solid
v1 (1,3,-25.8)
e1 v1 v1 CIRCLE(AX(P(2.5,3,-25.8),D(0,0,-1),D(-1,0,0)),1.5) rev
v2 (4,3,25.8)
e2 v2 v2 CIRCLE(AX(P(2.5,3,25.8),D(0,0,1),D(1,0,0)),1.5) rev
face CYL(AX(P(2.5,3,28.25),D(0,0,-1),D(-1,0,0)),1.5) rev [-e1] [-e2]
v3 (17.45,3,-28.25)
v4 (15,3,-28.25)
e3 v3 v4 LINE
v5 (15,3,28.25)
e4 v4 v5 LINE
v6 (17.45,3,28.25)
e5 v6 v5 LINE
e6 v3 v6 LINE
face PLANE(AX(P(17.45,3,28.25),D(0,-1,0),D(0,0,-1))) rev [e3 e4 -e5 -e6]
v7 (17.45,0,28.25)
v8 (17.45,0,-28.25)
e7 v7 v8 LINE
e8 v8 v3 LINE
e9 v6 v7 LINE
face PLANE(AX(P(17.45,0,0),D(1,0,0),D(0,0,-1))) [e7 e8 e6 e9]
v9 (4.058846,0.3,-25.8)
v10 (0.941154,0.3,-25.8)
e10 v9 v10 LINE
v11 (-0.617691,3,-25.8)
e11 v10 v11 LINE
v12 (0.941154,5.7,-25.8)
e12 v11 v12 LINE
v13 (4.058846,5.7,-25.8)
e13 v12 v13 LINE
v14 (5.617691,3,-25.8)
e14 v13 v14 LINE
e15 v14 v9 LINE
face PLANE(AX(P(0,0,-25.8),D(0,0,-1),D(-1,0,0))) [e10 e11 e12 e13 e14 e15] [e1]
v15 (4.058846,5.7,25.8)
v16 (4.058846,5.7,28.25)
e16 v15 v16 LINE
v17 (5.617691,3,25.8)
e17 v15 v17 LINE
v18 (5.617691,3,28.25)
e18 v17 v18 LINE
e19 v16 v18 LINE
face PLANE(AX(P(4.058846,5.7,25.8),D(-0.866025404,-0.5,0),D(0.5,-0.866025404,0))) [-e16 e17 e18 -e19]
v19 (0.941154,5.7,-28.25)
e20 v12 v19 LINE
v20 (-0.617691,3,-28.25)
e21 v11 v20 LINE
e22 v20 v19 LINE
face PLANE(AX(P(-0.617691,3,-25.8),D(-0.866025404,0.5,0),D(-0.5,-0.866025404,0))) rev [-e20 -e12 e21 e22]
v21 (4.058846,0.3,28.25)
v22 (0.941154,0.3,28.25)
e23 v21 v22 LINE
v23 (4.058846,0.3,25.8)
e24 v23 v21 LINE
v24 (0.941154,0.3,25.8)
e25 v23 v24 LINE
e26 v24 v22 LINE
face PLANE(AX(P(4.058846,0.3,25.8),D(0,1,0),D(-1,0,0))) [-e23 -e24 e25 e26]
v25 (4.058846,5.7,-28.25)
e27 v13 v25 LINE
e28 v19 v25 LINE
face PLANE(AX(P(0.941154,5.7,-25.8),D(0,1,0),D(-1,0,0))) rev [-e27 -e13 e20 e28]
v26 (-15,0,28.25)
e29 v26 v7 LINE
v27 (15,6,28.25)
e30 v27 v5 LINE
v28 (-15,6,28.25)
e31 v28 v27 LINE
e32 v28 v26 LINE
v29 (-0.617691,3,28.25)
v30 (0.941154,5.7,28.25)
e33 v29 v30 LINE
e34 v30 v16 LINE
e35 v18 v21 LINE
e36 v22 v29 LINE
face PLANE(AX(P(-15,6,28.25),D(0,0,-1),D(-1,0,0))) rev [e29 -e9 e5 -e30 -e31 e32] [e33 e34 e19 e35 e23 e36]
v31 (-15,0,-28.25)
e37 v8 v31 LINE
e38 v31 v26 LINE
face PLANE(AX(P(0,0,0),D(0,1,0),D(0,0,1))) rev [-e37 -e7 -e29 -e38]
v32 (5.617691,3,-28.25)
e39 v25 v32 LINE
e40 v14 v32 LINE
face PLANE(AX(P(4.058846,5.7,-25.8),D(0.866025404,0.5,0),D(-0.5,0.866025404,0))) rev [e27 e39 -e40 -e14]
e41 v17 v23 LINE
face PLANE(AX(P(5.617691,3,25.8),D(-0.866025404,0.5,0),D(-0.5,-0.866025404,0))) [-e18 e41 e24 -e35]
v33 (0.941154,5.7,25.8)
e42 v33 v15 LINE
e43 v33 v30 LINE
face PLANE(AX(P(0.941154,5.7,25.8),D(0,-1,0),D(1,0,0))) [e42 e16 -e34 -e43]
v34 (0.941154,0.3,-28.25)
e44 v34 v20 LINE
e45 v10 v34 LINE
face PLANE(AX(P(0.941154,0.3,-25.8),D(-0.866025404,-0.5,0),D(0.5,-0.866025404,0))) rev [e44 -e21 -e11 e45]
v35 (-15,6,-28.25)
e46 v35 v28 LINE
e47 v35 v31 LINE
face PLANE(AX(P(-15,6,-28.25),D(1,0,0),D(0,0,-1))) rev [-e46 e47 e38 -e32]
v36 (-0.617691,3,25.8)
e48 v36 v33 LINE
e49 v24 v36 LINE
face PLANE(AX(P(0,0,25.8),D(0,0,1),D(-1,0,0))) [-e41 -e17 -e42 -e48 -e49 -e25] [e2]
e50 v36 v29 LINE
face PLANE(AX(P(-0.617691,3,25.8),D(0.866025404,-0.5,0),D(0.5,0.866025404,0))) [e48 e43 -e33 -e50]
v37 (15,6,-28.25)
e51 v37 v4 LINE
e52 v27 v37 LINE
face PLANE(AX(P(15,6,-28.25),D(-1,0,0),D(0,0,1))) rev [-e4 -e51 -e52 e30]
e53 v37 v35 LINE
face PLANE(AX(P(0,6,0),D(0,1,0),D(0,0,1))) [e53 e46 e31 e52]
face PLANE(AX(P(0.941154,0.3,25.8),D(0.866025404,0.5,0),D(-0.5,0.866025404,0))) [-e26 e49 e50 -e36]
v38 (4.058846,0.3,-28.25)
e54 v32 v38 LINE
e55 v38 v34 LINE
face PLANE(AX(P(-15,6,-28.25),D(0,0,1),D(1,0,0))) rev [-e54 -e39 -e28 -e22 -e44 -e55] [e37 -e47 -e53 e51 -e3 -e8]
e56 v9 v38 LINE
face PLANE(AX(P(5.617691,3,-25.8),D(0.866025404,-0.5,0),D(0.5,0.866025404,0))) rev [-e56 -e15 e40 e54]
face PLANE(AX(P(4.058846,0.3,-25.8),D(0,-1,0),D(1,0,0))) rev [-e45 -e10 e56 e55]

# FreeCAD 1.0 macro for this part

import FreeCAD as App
import Part
import Sketcher

V = App.Vector
Q = App.Units.Quantity

doc = App.newDocument("Part")
body = doc.addObject("PartDesign::Body", "Body")

# Sketch on XZ plane
sketch1 = doc.addObject("Sketcher::SketchObject", "Sketch")
body.addObject(sketch1)
sketch1.AttachmentSupport = (doc.XZ_Plane, [""])
sketch1.MapMode = "FlatFace"
sketch1.addGeometry(Part.LineSegment(V(-15, -28.25, 0), V(-15, 28.25, 0)), False)
sketch1.addGeometry(Part.LineSegment(V(-15, 28.25, 0), V(15, 28.25, 0)), False)
sketch1.addGeometry(Part.LineSegment(V(15, 28.25, 0), V(15, -28.25, 0)), False)
sketch1.addGeometry(Part.LineSegment(V(15, -28.25, 0), V(-15, -28.25, 0)), False)
sketch1.addConstraint(Sketcher.Constraint("Coincident", 0, 2, 1, 1))
sketch1.addConstraint(Sketcher.Constraint("Coincident", 1, 2, 2, 1))
sketch1.addConstraint(Sketcher.Constraint("Coincident", 2, 2, 3, 1))
sketch1.addConstraint(Sketcher.Constraint("Coincident", 3, 2, 0, 1))
sketch1.addConstraint(Sketcher.Constraint("Vertical", 0))
sketch1.addConstraint(Sketcher.Constraint("Horizontal", 1))
sketch1.addConstraint(Sketcher.Constraint("Vertical", 2))
sketch1.addConstraint(Sketcher.Constraint("Horizontal", 3))
sketch1.addConstraint(Sketcher.Constraint("Symmetric", 0, 2, 2, 2, -1, 1))
sketch1.addConstraint(Sketcher.Constraint("DistanceX", 1, 1, 1, 2, Q("30 mm")))
sketch1.addConstraint(Sketcher.Constraint("DistanceY", 0, 1, 0, 2, Q("56.5 mm")))
pad1 = doc.addObject("PartDesign::Pad", "Pad")
body.addObject(pad1)
pad1.Profile = sketch1
pad1.Length = 6
pad1.Reversed = True

# Sketch on YZ plane
sketch2 = doc.addObject("Sketcher::SketchObject", "Sketch001")
body.addObject(sketch2)
sketch2.AttachmentSupport = (doc.YZ_Plane, [""])
sketch2.MapMode = "FlatFace"
sketch2.AttachmentOffset = App.Placement(V(0, 0, 15), App.Rotation())
sketch2.addGeometry(Part.LineSegment(V(3, 28.25, 0), V(0, 28.25, 0)), False)
sketch2.addGeometry(Part.LineSegment(V(0, 28.25, 0), V(0, -28.25, 0)), False)
sketch2.addGeometry(Part.LineSegment(V(0, -28.25, 0), V(3, -28.25, 0)), False)
sketch2.addGeometry(Part.LineSegment(V(3, -28.25, 0), V(3, 28.25, 0)), False)
sketch2.addConstraint(Sketcher.Constraint("Coincident", 0, 2, 1, 1))
sketch2.addConstraint(Sketcher.Constraint("Coincident", 1, 2, 2, 1))
sketch2.addConstraint(Sketcher.Constraint("Coincident", 2, 2, 3, 1))
sketch2.addConstraint(Sketcher.Constraint("Coincident", 3, 2, 0, 1))
sketch2.addConstraint(Sketcher.Constraint("Horizontal", 0))
sketch2.addConstraint(Sketcher.Constraint("Vertical", 1))
sketch2.addConstraint(Sketcher.Constraint("Horizontal", 2))
sketch2.addConstraint(Sketcher.Constraint("Vertical", 3))
sketch2.addConstraint(Sketcher.Constraint("Symmetric", 0, 2, 1, 2, -1, 1))
sketch2.addConstraint(Sketcher.Constraint("DistanceX", 0, 2, 0, 1, Q("3 mm")))
sketch2.addConstraint(Sketcher.Constraint("DistanceY", 1, 2, 1, 1, Q("56.5 mm")))
pad2 = doc.addObject("PartDesign::Pad", "Pad001")
body.addObject(pad2)
pad2.Profile = sketch2
pad2.Length = 2.45

# Sketch on XY plane
sketch3 = doc.addObject("Sketcher::SketchObject", "Sketch002")
body.addObject(sketch3)
sketch3.AttachmentSupport = (doc.XY_Plane, [""])
sketch3.MapMode = "FlatFace"
sketch3.AttachmentOffset = App.Placement(V(0, 0, -28.25), App.Rotation())
sketch3.addGeometry(Part.Circle(V(2.5, 3, 0), V(0, 0, 1), 1.5), False)
sketch3.addConstraint(Sketcher.Constraint("Diameter", 0, Q("3 mm")))
sketch3.addConstraint(Sketcher.Constraint("DistanceY", -1, 1, 0, 3, Q("3 mm")))
sketch3.addConstraint(Sketcher.Constraint("DistanceX", -1, 1, 0, 3, Q("2.5 mm")))
pocket1 = doc.addObject("PartDesign::Pocket", "Pocket")
body.addObject(pocket1)
pocket1.Profile = sketch3
pocket1.Type = "ThroughAll"
pocket1.Reversed = True

# Sketch on XY plane
sketch4 = doc.addObject("Sketcher::SketchObject", "Sketch003")
body.addObject(sketch4)
sketch4.AttachmentSupport = (doc.XY_Plane, [""])
sketch4.MapMode = "FlatFace"
sketch4.AttachmentOffset = App.Placement(V(0, 0, -28.25), App.Rotation())
sketch4.addGeometry(Part.LineSegment(V(0.941154, 0.3, 0), V(-0.617691, 3, 0)), False)
sketch4.addGeometry(Part.LineSegment(V(-0.617691, 3, 0), V(0.941154, 5.7, 0)), False)
sketch4.addGeometry(Part.LineSegment(V(0.941154, 5.7, 0), V(4.058846, 5.7, 0)), False)
sketch4.addGeometry(Part.LineSegment(V(4.058846, 5.7, 0), V(5.617691, 3, 0)), False)
sketch4.addGeometry(Part.LineSegment(V(5.617691, 3, 0), V(4.058846, 0.3, 0)), False)
sketch4.addGeometry(Part.LineSegment(V(4.058846, 0.3, 0), V(0.941154, 0.3, 0)), False)
sketch4.addConstraint(Sketcher.Constraint("Coincident", 0, 2, 1, 1))
sketch4.addConstraint(Sketcher.Constraint("Coincident", 1, 2, 2, 1))
sketch4.addConstraint(Sketcher.Constraint("Coincident", 2, 2, 3, 1))
sketch4.addConstraint(Sketcher.Constraint("Coincident", 3, 2, 4, 1))
sketch4.addConstraint(Sketcher.Constraint("Coincident", 4, 2, 5, 1))
sketch4.addConstraint(Sketcher.Constraint("Coincident", 5, 2, 0, 1))
sketch4.addConstraint(Sketcher.Constraint("Horizontal", 2))
sketch4.addConstraint(Sketcher.Constraint("Horizontal", 5))
sketch4.addConstraint(Sketcher.Constraint("Parallel", 0, 3))
sketch4.addConstraint(Sketcher.Constraint("Parallel", 1, 4))
sketch4.addConstraint(Sketcher.Constraint("Horizontal", 0, 2, 3, 2))
sketch4.addConstraint(Sketcher.Constraint("Vertical", 2, 2, 4, 2))
sketch4.addConstraint(Sketcher.Constraint("Vertical", 1, 2, 5, 2))
sketch4.addConstraint(Sketcher.Constraint("Angle", 0, Q("120 deg")))
sketch4.addConstraint(Sketcher.Constraint("DistanceY", -1, 1, 0, 2, Q("3 mm")))
sketch4.addConstraint(Sketcher.Constraint("DistanceY", -1, 1, 1, 2, Q("5.7 mm")))
sketch4.addConstraint(Sketcher.Constraint("DistanceX", 2, 1, 2, 2, Q("3.117691 mm")))
sketch4.addConstraint(Sketcher.Constraint("DistanceX", 0, 2, -1, 1, Q("0.617691 mm")))
pocket2 = doc.addObject("PartDesign::Pocket", "Pocket001")
body.addObject(pocket2)
pocket2.Profile = sketch4
pocket2.Length = 2.45
pocket2.Reversed = True
doc.recompute()

mirrored = doc.addObject("PartDesign::Mirrored", "Mirrored")
body.addObject(mirrored)
mirrored.Originals = [pocket2]
mirrored.MirrorPlane = (doc.XY_Plane, [""])
body.Tip = mirrored

doc.recompute()
